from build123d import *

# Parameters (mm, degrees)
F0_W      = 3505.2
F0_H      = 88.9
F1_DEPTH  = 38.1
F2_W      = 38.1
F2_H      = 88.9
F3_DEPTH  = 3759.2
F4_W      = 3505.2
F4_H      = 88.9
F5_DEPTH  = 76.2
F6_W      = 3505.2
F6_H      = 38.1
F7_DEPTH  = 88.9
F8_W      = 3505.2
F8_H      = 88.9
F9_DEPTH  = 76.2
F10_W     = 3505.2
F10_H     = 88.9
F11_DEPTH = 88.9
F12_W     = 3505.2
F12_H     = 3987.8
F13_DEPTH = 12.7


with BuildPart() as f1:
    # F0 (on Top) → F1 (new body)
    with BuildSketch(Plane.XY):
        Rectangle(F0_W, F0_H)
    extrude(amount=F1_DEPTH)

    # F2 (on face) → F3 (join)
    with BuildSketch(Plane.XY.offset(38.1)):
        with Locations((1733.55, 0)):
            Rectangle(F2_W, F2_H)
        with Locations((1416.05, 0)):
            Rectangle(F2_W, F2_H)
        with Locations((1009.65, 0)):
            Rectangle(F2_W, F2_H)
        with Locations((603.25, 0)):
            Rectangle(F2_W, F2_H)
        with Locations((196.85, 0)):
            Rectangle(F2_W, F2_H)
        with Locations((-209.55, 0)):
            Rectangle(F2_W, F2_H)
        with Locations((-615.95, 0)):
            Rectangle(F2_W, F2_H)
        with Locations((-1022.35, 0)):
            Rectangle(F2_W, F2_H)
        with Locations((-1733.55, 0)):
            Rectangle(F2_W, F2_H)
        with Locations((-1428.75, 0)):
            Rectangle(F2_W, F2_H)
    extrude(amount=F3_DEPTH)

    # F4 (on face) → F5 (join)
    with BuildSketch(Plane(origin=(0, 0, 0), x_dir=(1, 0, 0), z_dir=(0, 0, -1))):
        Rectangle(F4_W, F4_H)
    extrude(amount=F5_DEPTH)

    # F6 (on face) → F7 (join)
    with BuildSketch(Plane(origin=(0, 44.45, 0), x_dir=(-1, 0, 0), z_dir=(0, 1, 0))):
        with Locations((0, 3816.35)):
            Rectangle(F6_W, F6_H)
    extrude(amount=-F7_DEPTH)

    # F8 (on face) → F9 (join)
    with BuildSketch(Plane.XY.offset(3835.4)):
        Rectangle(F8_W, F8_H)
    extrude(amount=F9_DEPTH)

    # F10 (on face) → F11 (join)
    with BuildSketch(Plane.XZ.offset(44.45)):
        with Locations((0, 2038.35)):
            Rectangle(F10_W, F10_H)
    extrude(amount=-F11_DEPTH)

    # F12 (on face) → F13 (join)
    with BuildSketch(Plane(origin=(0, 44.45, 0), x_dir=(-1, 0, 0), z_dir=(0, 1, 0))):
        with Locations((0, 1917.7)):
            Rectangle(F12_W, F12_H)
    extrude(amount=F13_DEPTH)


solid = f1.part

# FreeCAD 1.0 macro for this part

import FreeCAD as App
import Part
import Sketcher

V = App.Vector
Q = App.Units.Quantity

doc = App.newDocument("Part")
body = doc.addObject("PartDesign::Body", "Body")

# Sketch on XY plane
sketch1 = doc.addObject("Sketcher::SketchObject", "Sketch")
body.addObject(sketch1)
sketch1.AttachmentSupport = (doc.XY_Plane, [""])
sketch1.MapMode = "FlatFace"
sketch1.addGeometry([
    Part.LineSegment(V(-1753, 44, 0), V(-1753, -44, 0)),
    Part.LineSegment(V(-1753, -44, 0), V(1753, -44, 0)),
    Part.LineSegment(V(1753, -44, 0), V(1753, 44, 0)),
    Part.LineSegment(V(1753, 44, 0), V(-1753, 44, 0)),
], False)
sketch1.addConstraint([
    Sketcher.Constraint("Coincident", 0, 2, 1, 1),
    Sketcher.Constraint("Coincident", 1, 2, 2, 1),
    Sketcher.Constraint("Coincident", 2, 2, 3, 1),
    Sketcher.Constraint("Coincident", 3, 2, 0, 1),
    Sketcher.Constraint("Vertical", 0),
    Sketcher.Constraint("Horizontal", 1),
    Sketcher.Constraint("Vertical", 2),
    Sketcher.Constraint("Horizontal", 3),
    Sketcher.Constraint("Symmetric", 0, 2, 2, 2, -1, 1),
    Sketcher.Constraint("DistanceX", 1, 1, 1, 2, Q("138 in")),
    Sketcher.Constraint("DistanceY", 0, 2, 0, 1, Q("3.5 in")),
])
pad1 = doc.addObject("PartDesign::Pad", "Pad")
body.addObject(pad1)
pad1.Profile = sketch1
pad1.Length = Q("1.5 in")

# Sketch on XY plane
sketch2 = doc.addObject("Sketcher::SketchObject", "Sketch001")
body.addObject(sketch2)
sketch2.AttachmentSupport = (doc.XY_Plane, [""])
sketch2.MapMode = "FlatFace"
sketch2.AttachmentOffset = App.Placement(V(0, 0, 1.5 * 25.4), App.Rotation())
sketch2.addGeometry([
    Part.LineSegment(V(1714, 44, 0), V(1714, -44, 0)),  # 0
    Part.LineSegment(V(1714, -44, 0), V(1753, -44, 0)),  # 1
    Part.LineSegment(V(1753, -44, 0), V(1753, 44, 0)),  # 2
    Part.LineSegment(V(1753, 44, 0), V(1714, 44, 0)),  # 3
    Part.LineSegment(V(1397, 44, 0), V(1397, -44, 0)),  # 4
    Part.LineSegment(V(1397, -44, 0), V(1435, -44, 0)),  # 5
    Part.LineSegment(V(1435, -44, 0), V(1435, 44, 0)),  # 6
    Part.LineSegment(V(1435, 44, 0), V(1397, 44, 0)),  # 7
    Part.LineSegment(V(991, 44, 0), V(991, -44, 0)),  # 8
    Part.LineSegment(V(991, -44, 0), V(1029, -44, 0)),  # 9
    Part.LineSegment(V(1029, -44, 0), V(1029, 44, 0)),  # 10
    Part.LineSegment(V(1029, 44, 0), V(991, 44, 0)),  # 11
    Part.LineSegment(V(584, 44, 0), V(584, -44, 0)),  # 12
    Part.LineSegment(V(584, -44, 0), V(622, -44, 0)),  # 13
    Part.LineSegment(V(622, -44, 0), V(622, 44, 0)),  # 14
    Part.LineSegment(V(622, 44, 0), V(584, 44, 0)),  # 15
    Part.LineSegment(V(178, 44, 0), V(178, -44, 0)),  # 16
    Part.LineSegment(V(178, -44, 0), V(216, -44, 0)),  # 17
    Part.LineSegment(V(216, -44, 0), V(216, 44, 0)),  # 18
    Part.LineSegment(V(216, 44, 0), V(178, 44, 0)),  # 19
    Part.LineSegment(V(-229, 44, 0), V(-229, -44, 0)),  # 20
    Part.LineSegment(V(-229, -44, 0), V(-190, -44, 0)),  # 21
    Part.LineSegment(V(-190, -44, 0), V(-190, 44, 0)),  # 22
    Part.LineSegment(V(-190, 44, 0), V(-229, 44, 0)),  # 23
    Part.LineSegment(V(-635, 44, 0), V(-635, -44, 0)),  # 24
    Part.LineSegment(V(-635, -44, 0), V(-597, -44, 0)),  # 25
    Part.LineSegment(V(-597, -44, 0), V(-597, 44, 0)),  # 26
    Part.LineSegment(V(-597, 44, 0), V(-635, 44, 0)),  # 27
    Part.LineSegment(V(-1041, 44, 0), V(-1041, -44, 0)),  # 28
    Part.LineSegment(V(-1041, -44, 0), V(-1003, -44, 0)),  # 29
    Part.LineSegment(V(-1003, -44, 0), V(-1003, 44, 0)),  # 30
    Part.LineSegment(V(-1003, 44, 0), V(-1041, 44, 0)),  # 31
    Part.LineSegment(V(-1753, 44, 0), V(-1753, -44, 0)),  # 32
    Part.LineSegment(V(-1753, -44, 0), V(-1714, -44, 0)),  # 33
    Part.LineSegment(V(-1714, -44, 0), V(-1714, 44, 0)),  # 34
    Part.LineSegment(V(-1714, 44, 0), V(-1753, 44, 0)),  # 35
    Part.LineSegment(V(-1448, 44, 0), V(-1448, -44, 0)),  # 36
    Part.LineSegment(V(-1448, -44, 0), V(-1410, -44, 0)),  # 37
    Part.LineSegment(V(-1410, -44, 0), V(-1410, 44, 0)),  # 38
    Part.LineSegment(V(-1410, 44, 0), V(-1448, 44, 0)),  # 39
], False)
sketch2.addConstraint([
    Sketcher.Constraint("Coincident", 0, 2, 1, 1),
    Sketcher.Constraint("Coincident", 1, 2, 2, 1),
    Sketcher.Constraint("Coincident", 2, 2, 3, 1),
    Sketcher.Constraint("Coincident", 3, 2, 0, 1),
    Sketcher.Constraint("Coincident", 4, 2, 5, 1),
    Sketcher.Constraint("Coincident", 5, 2, 6, 1),
    Sketcher.Constraint("Coincident", 6, 2, 7, 1),
    Sketcher.Constraint("Coincident", 7, 2, 4, 1),
    Sketcher.Constraint("Coincident", 8, 2, 9, 1),
    Sketcher.Constraint("Coincident", 9, 2, 10, 1),
    Sketcher.Constraint("Coincident", 10, 2, 11, 1),
    Sketcher.Constraint("Coincident", 11, 2, 8, 1),
    Sketcher.Constraint("Coincident", 12, 2, 13, 1),
    Sketcher.Constraint("Coincident", 13, 2, 14, 1),
    Sketcher.Constraint("Coincident", 14, 2, 15, 1),
    Sketcher.Constraint("Coincident", 15, 2, 12, 1),
    Sketcher.Constraint("Coincident", 16, 2, 17, 1),
    Sketcher.Constraint("Coincident", 17, 2, 18, 1),
    Sketcher.Constraint("Coincident", 18, 2, 19, 1),
    Sketcher.Constraint("Coincident", 19, 2, 16, 1),
    Sketcher.Constraint("Coincident", 20, 2, 21, 1),
    Sketcher.Constraint("Coincident", 21, 2, 22, 1),
    Sketcher.Constraint("Coincident", 22, 2, 23, 1),
    Sketcher.Constraint("Coincident", 23, 2, 20, 1),
    Sketcher.Constraint("Coincident", 24, 2, 25, 1),
    Sketcher.Constraint("Coincident", 25, 2, 26, 1),
    Sketcher.Constraint("Coincident", 26, 2, 27, 1),
    Sketcher.Constraint("Coincident", 27, 2, 24, 1),
    Sketcher.Constraint("Coincident", 28, 2, 29, 1),
    Sketcher.Constraint("Coincident", 29, 2, 30, 1),
    Sketcher.Constraint("Coincident", 30, 2, 31, 1),
    Sketcher.Constraint("Coincident", 31, 2, 28, 1),
    Sketcher.Constraint("Coincident", 32, 2, 33, 1),
    Sketcher.Constraint("Coincident", 33, 2, 34, 1),
    Sketcher.Constraint("Coincident", 34, 2, 35, 1),
    Sketcher.Constraint("Coincident", 35, 2, 32, 1),
    Sketcher.Constraint("Coincident", 36, 2, 37, 1),
    Sketcher.Constraint("Coincident", 37, 2, 38, 1),
    Sketcher.Constraint("Coincident", 38, 2, 39, 1),
    Sketcher.Constraint("Coincident", 39, 2, 36, 1),
    Sketcher.Constraint("Vertical", 0),
    Sketcher.Constraint("Horizontal", 1),
    Sketcher.Constraint("Vertical", 2),
    Sketcher.Constraint("Horizontal", 3),
    Sketcher.Constraint("Vertical", 4),
    Sketcher.Constraint("Horizontal", 5),
    Sketcher.Constraint("Vertical", 6),
    Sketcher.Constraint("Horizontal", 7),
    Sketcher.Constraint("Vertical", 8),
    Sketcher.Constraint("Horizontal", 9),
    Sketcher.Constraint("Vertical", 10),
    Sketcher.Constraint("Horizontal", 11),
    Sketcher.Constraint("Vertical", 12),
    Sketcher.Constraint("Horizontal", 13),
    Sketcher.Constraint("Vertical", 14),
    Sketcher.Constraint("Horizontal", 15),
    Sketcher.Constraint("Vertical", 16),
    Sketcher.Constraint("Horizontal", 17),
    Sketcher.Constraint("Vertical", 18),
    Sketcher.Constraint("Horizontal", 19),
    Sketcher.Constraint("Vertical", 20),
    Sketcher.Constraint("Horizontal", 21),
    Sketcher.Constraint("Vertical", 22),
    Sketcher.Constraint("Horizontal", 23),
    Sketcher.Constraint("Vertical", 24),
    Sketcher.Constraint("Horizontal", 25),
    Sketcher.Constraint("Vertical", 26),
    Sketcher.Constraint("Horizontal", 27),
    Sketcher.Constraint("Vertical", 28),
    Sketcher.Constraint("Horizontal", 29),
    Sketcher.Constraint("Vertical", 30),
    Sketcher.Constraint("Horizontal", 31),
    Sketcher.Constraint("Vertical", 32),
    Sketcher.Constraint("Horizontal", 33),
    Sketcher.Constraint("Vertical", 34),
    Sketcher.Constraint("Horizontal", 35),
    Sketcher.Constraint("Vertical", 36),
    Sketcher.Constraint("Horizontal", 37),
    Sketcher.Constraint("Vertical", 38),
    Sketcher.Constraint("Horizontal", 39),
    Sketcher.Constraint("Symmetric", 2, 2, 32, 2, -1, 1),
    Sketcher.Constraint("Symmetric", 0, 2, 34, 2, -1, 1),
    Sketcher.Constraint("Horizontal", 1, 2, 4, 2),
    Sketcher.Constraint("Horizontal", 3, 2, 6, 2),
    Sketcher.Constraint("Horizontal", 5, 2, 8, 2),
    Sketcher.Constraint("Horizontal", 7, 2, 10, 2),
    Sketcher.Constraint("Horizontal", 9, 2, 12, 2),
    Sketcher.Constraint("Horizontal", 11, 2, 14, 2),
    Sketcher.Constraint("Horizontal", 13, 2, 16, 2),
    Sketcher.Constraint("Horizontal", 15, 2, 18, 2),
    Sketcher.Constraint("Horizontal", 17, 2, 20, 2),
    Sketcher.Constraint("Horizontal", 19, 2, 22, 2),
    Sketcher.Constraint("Horizontal", 21, 2, 24, 2),
    Sketcher.Constraint("Horizontal", 23, 2, 26, 2),
    Sketcher.Constraint("Horizontal", 25, 2, 28, 2),
    Sketcher.Constraint("Horizontal", 27, 2, 30, 2),
    Sketcher.Constraint("Horizontal", 29, 2, 32, 2),
    Sketcher.Constraint("Horizontal", 33, 2, 36, 2),
    Sketcher.Constraint("Horizontal", 35, 2, 38, 2),
    Sketcher.Constraint("Equal", 3, 5),
    Sketcher.Constraint("Equal", 7, 9),
    Sketcher.Constraint("Equal", 11, 13),
    Sketcher.Constraint("Equal", 15, 17),
    Sketcher.Constraint("Equal", 19, 21),
    Sketcher.Constraint("Equal", 23, 25),
    Sketcher.Constraint("Equal", 27, 29),
    Sketcher.Constraint("Equal", 35, 37),
    Sketcher.Constraint("DistanceX", 1, 1, 1, 2, Q("1.5 in")),
    Sketcher.Constraint("DistanceY", 0, 2, 0, 1, Q("3.5 in")),
    Sketcher.Constraint("DistanceX", -1, 1, 1, 2, Q("69 in")),
    Sketcher.Constraint("DistanceX", -1, 1, 4, 2, Q("55 in")),
    Sketcher.Constraint("DistanceX", -1, 1, 8, 2, Q("39 in")),
    Sketcher.Constraint("DistanceX", -1, 1, 12, 2, Q("23 in")),
    Sketcher.Constraint("DistanceX", -1, 1, 16, 2, Q("7 in")),
    Sketcher.Constraint("DistanceX", 20, 2, -1, 1, Q("9 in")),
    Sketcher.Constraint("DistanceX", 24, 2, -1, 1, Q("25 in")),
    Sketcher.Constraint("DistanceX", 28, 2, -1, 1, Q("41 in")),
    Sketcher.Constraint("DistanceX", 36, 2, -1, 1, Q("57 in")),
])
pad2 = doc.addObject("PartDesign::Pad", "Pad001")
body.addObject(pad2)
pad2.Profile = sketch2
pad2.Length = Q("148 in")

# Sketch on XY plane
sketch3 = doc.addObject("Sketcher::SketchObject", "Sketch002")
body.addObject(sketch3)
sketch3.AttachmentSupport = (doc.XY_Plane, [""])
sketch3.MapMode = "FlatFace"
sketch3.addGeometry([
    Part.LineSegment(V(-1753, -44, 0), V(-1753, 44, 0)),
    Part.LineSegment(V(-1753, 44, 0), V(1753, 44, 0)),
    Part.LineSegment(V(1753, 44, 0), V(1753, -44, 0)),
    Part.LineSegment(V(1753, -44, 0), V(-1753, -44, 0)),
], False)
sketch3.addConstraint([
    Sketcher.Constraint("Coincident", 0, 2, 1, 1),
    Sketcher.Constraint("Coincident", 1, 2, 2, 1),
    Sketcher.Constraint("Coincident", 2, 2, 3, 1),
    Sketcher.Constraint("Coincident", 3, 2, 0, 1),
    Sketcher.Constraint("Vertical", 0),
    Sketcher.Constraint("Horizontal", 1),
    Sketcher.Constraint("Vertical", 2),
    Sketcher.Constraint("Horizontal", 3),
    Sketcher.Constraint("Symmetric", 0, 2, 2, 2, -1, 1),
    Sketcher.Constraint("DistanceX", 1, 1, 1, 2, Q("138 in")),
    Sketcher.Constraint("DistanceY", 0, 1, 0, 2, Q("3.5 in")),
])
pad3 = doc.addObject("PartDesign::Pad", "Pad002")
body.addObject(pad3)
pad3.Profile = sketch3
pad3.Length = Q("3 in")
pad3.Reversed = True

# Sketch on XZ plane
sketch4 = doc.addObject("Sketcher::SketchObject", "Sketch003")
body.addObject(sketch4)
sketch4.AttachmentSupport = (doc.XZ_Plane, [""])
sketch4.MapMode = "FlatFace"
sketch4.AttachmentOffset = App.Placement(V(0, 0, -1.75 * 25.4), App.Rotation())
sketch4.addGeometry([
    Part.LineSegment(V(1753, 3835, 0), V(1753, 3797, 0)),
    Part.LineSegment(V(1753, 3797, 0), V(-1753, 3797, 0)),
    Part.LineSegment(V(-1753, 3797, 0), V(-1753, 3835, 0)),
    Part.LineSegment(V(-1753, 3835, 0), V(1753, 3835, 0)),
], False)
sketch4.addConstraint([
    Sketcher.Constraint("Coincident", 0, 2, 1, 1),
    Sketcher.Constraint("Coincident", 1, 2, 2, 1),
    Sketcher.Constraint("Coincident", 2, 2, 3, 1),
    Sketcher.Constraint("Coincident", 3, 2, 0, 1),
    Sketcher.Constraint("Vertical", 0),
    Sketcher.Constraint("Horizontal", 1),
    Sketcher.Constraint("Vertical", 2),
    Sketcher.Constraint("Horizontal", 3),
    Sketcher.Constraint("DistanceX", 1, 2, 1, 1, Q("138 in")),
    Sketcher.Constraint("DistanceY", 0, 2, 0, 1, Q("1.5 in")),
    Sketcher.Constraint("DistanceX", -1, 1, 0, 2, Q("69 in")),
    Sketcher.Constraint("DistanceY", -1, 1, 2, 2, Q("151 in")),
])
pad4 = doc.addObject("PartDesign::Pad", "Pad003")
body.addObject(pad4)
pad4.Profile = sketch4
pad4.Length = Q("3.5 in")

# Sketch on XY plane
sketch5 = doc.addObject("Sketcher::SketchObject", "Sketch004")
body.addObject(sketch5)
sketch5.AttachmentSupport = (doc.XY_Plane, [""])
sketch5.MapMode = "FlatFace"
sketch5.AttachmentOffset = App.Placement(V(0, 0, 151 * 25.4), App.Rotation())
sketch5.addGeometry([
    Part.LineSegment(V(-1753, 44, 0), V(-1753, -44, 0)),
    Part.LineSegment(V(-1753, -44, 0), V(1753, -44, 0)),
    Part.LineSegment(V(1753, -44, 0), V(1753, 44, 0)),
    Part.LineSegment(V(1753, 44, 0), V(-1753, 44, 0)),
], False)
sketch5.addConstraint([
    Sketcher.Constraint("Coincident", 0, 2, 1, 1),
    Sketcher.Constraint("Coincident", 1, 2, 2, 1),
    Sketcher.Constraint("Coincident", 2, 2, 3, 1),
    Sketcher.Constraint("Coincident", 3, 2, 0, 1),
    Sketcher.Constraint("Vertical", 0),
    Sketcher.Constraint("Horizontal", 1),
    Sketcher.Constraint("Vertical", 2),
    Sketcher.Constraint("Horizontal", 3),
    Sketcher.Constraint("Symmetric", 0, 2, 2, 2, -1, 1),
    Sketcher.Constraint("DistanceX", 1, 1, 1, 2, Q("138 in")),
    Sketcher.Constraint("DistanceY", 0, 2, 0, 1, Q("3.5 in")),
])
pad5 = doc.addObject("PartDesign::Pad", "Pad004")
body.addObject(pad5)
pad5.Profile = sketch5
pad5.Length = Q("3 in")

# Sketch on XZ plane
sketch6 = doc.addObject("Sketcher::SketchObject", "Sketch005")
body.addObject(sketch6)
sketch6.AttachmentSupport = (doc.XZ_Plane, [""])
sketch6.MapMode = "FlatFace"
sketch6.AttachmentOffset = App.Placement(V(0, 0, 1.75 * 25.4), App.Rotation())
sketch6.addGeometry([
    Part.LineSegment(V(-1753, 2083, 0), V(-1753, 1994, 0)),
    Part.LineSegment(V(-1753, 1994, 0), V(1753, 1994, 0)),
    Part.LineSegment(V(1753, 1994, 0), V(1753, 2083, 0)),
    Part.LineSegment(V(1753, 2083, 0), V(-1753, 2083, 0)),
], False)
sketch6.addConstraint([
    Sketcher.Constraint("Coincident", 0, 2, 1, 1),
    Sketcher.Constraint("Coincident", 1, 2, 2, 1),
    Sketcher.Constraint("Coincident", 2, 2, 3, 1),
    Sketcher.Constraint("Coincident", 3, 2, 0, 1),
    Sketcher.Constraint("Vertical", 0),
    Sketcher.Constraint("Horizontal", 1),
    Sketcher.Constraint("Vertical", 2),
    Sketcher.Constraint("Horizontal", 3),
    Sketcher.Constraint("DistanceX", 1, 1, 1, 2, Q("138 in")),
    Sketcher.Constraint("DistanceY", 0, 2, 0, 1, Q("3.5 in")),
    Sketcher.Constraint("DistanceX", 0, 2, -1, 1, Q("69 in")),
    Sketcher.Constraint("DistanceY", -1, 1, 2, 2, Q("82 in")),
])
pad6 = doc.addObject("PartDesign::Pad", "Pad005")
body.addObject(pad6)
pad6.Profile = sketch6
pad6.Length = Q("3.5 in")
pad6.Reversed = True

# Sketch on XZ plane
sketch7 = doc.addObject("Sketcher::SketchObject", "Sketch006")
body.addObject(sketch7)
sketch7.AttachmentSupport = (doc.XZ_Plane, [""])
sketch7.MapMode = "FlatFace"
sketch7.AttachmentOffset = App.Placement(V(0, 0, -1.75 * 25.4), App.Rotation())
sketch7.addGeometry([
    Part.LineSegment(V(1753, 3912, 0), V(1753, -76, 0)),
    Part.LineSegment(V(1753, -76, 0), V(-1753, -76, 0)),
    Part.LineSegment(V(-1753, -76, 0), V(-1753, 3912, 0)),
    Part.LineSegment(V(-1753, 3912, 0), V(1753, 3912, 0)),
], False)
sketch7.addConstraint([
    Sketcher.Constraint("Coincident", 0, 2, 1, 1),
    Sketcher.Constraint("Coincident", 1, 2, 2, 1),
    Sketcher.Constraint("Coincident", 2, 2, 3, 1),
    Sketcher.Constraint("Coincident", 3, 2, 0, 1),
    Sketcher.Constraint("Vertical", 0),
    Sketcher.Constraint("Horizontal", 1),
    Sketcher.Constraint("Vertical", 2),
    Sketcher.Constraint("Horizontal", 3),
    Sketcher.Constraint("DistanceX", 1, 2, 1, 1, Q("138 in")),
    Sketcher.Constraint("DistanceY", 0, 2, 0, 1, Q("157 in")),
    Sketcher.Constraint("DistanceX", -1, 1, 0, 2, Q("69 in")),
    Sketcher.Constraint("DistanceY", 0, 2, -1, 1, Q("3 in")),
])
pad7 = doc.addObject("PartDesign::Pad", "Pad006")
body.addObject(pad7)
pad7.Profile = sketch7
pad7.Length = Q("0.5 in")
pad7.Reversed = True

doc.recompute()
